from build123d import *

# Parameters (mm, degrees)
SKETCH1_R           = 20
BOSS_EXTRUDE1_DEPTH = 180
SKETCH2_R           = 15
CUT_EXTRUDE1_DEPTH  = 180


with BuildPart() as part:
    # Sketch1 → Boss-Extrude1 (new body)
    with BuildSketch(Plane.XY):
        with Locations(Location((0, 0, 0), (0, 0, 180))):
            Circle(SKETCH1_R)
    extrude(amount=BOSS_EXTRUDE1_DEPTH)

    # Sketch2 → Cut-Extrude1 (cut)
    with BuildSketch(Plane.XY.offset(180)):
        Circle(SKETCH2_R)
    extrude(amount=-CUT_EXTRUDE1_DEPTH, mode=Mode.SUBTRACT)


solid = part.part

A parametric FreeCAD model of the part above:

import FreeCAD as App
import Part
import Sketcher
Q = App.Units.Quantity

doc = App.newDocument("Part")
params = doc.addObject("Spreadsheet::Sheet", "Params")
for row, (alias, value) in enumerate([
    ("sketch1_diameter", "40 mm"),
    ("pad1_length", "180 mm"),
    ("sketch2_diameter", "30 mm"),
    ("pocket1_length", "180 mm"),
], start=1):
    params.set(f"A{row}", alias)
    params.set(f"B{row}", "=" + value)
    params.setAlias(f"B{row}", alias)

body = doc.addObject("PartDesign::Body", "Body")

sketch1 = body.newObject("Sketcher::SketchObject", "Sketch")
sketch1.AttachmentSupport = (doc.getObject("XY_Plane"), [""])
sketch1.MapMode = "FlatFace"
sketch1.addGeometry(Part.Circle(App.Vector(0, 0, 0), App.Vector(0, 0, 1), 20), False)
sketch1.addConstraint([
    Sketcher.Constraint("Coincident", 0, 3, -1, 1),
    Sketcher.Constraint("Diameter", 0, Q("40 mm")),
])
sketch1.setExpression("Constraints[1]", "Params.sketch1_diameter")
pad1 = body.newObject("PartDesign::Pad", "Pad")
pad1.Profile = sketch1
pad1.setExpression("Length", "Params.pad1_length")

sketch2 = body.newObject("Sketcher::SketchObject", "Sketch001")
sketch2.AttachmentSupport = (doc.getObject("XY_Plane"), [""])
sketch2.MapMode = "FlatFace"
sketch2.AttachmentOffset = App.Placement(App.Vector(0, 0, 180), App.Rotation())
sketch2.addGeometry(Part.Circle(App.Vector(0, 0, 0), App.Vector(0, 0, 1), 15), False)
sketch2.addConstraint([
    Sketcher.Constraint("Coincident", 0, 3, -1, 1),
    Sketcher.Constraint("Diameter", 0, Q("30 mm")),
])
sketch2.setExpression("Constraints[1]", "Params.sketch2_diameter")
pocket1 = body.newObject("PartDesign::Pocket", "Pocket")
pocket1.Profile = sketch2
pocket1.setExpression("Length", "Params.pocket1_length")

doc.recompute()
